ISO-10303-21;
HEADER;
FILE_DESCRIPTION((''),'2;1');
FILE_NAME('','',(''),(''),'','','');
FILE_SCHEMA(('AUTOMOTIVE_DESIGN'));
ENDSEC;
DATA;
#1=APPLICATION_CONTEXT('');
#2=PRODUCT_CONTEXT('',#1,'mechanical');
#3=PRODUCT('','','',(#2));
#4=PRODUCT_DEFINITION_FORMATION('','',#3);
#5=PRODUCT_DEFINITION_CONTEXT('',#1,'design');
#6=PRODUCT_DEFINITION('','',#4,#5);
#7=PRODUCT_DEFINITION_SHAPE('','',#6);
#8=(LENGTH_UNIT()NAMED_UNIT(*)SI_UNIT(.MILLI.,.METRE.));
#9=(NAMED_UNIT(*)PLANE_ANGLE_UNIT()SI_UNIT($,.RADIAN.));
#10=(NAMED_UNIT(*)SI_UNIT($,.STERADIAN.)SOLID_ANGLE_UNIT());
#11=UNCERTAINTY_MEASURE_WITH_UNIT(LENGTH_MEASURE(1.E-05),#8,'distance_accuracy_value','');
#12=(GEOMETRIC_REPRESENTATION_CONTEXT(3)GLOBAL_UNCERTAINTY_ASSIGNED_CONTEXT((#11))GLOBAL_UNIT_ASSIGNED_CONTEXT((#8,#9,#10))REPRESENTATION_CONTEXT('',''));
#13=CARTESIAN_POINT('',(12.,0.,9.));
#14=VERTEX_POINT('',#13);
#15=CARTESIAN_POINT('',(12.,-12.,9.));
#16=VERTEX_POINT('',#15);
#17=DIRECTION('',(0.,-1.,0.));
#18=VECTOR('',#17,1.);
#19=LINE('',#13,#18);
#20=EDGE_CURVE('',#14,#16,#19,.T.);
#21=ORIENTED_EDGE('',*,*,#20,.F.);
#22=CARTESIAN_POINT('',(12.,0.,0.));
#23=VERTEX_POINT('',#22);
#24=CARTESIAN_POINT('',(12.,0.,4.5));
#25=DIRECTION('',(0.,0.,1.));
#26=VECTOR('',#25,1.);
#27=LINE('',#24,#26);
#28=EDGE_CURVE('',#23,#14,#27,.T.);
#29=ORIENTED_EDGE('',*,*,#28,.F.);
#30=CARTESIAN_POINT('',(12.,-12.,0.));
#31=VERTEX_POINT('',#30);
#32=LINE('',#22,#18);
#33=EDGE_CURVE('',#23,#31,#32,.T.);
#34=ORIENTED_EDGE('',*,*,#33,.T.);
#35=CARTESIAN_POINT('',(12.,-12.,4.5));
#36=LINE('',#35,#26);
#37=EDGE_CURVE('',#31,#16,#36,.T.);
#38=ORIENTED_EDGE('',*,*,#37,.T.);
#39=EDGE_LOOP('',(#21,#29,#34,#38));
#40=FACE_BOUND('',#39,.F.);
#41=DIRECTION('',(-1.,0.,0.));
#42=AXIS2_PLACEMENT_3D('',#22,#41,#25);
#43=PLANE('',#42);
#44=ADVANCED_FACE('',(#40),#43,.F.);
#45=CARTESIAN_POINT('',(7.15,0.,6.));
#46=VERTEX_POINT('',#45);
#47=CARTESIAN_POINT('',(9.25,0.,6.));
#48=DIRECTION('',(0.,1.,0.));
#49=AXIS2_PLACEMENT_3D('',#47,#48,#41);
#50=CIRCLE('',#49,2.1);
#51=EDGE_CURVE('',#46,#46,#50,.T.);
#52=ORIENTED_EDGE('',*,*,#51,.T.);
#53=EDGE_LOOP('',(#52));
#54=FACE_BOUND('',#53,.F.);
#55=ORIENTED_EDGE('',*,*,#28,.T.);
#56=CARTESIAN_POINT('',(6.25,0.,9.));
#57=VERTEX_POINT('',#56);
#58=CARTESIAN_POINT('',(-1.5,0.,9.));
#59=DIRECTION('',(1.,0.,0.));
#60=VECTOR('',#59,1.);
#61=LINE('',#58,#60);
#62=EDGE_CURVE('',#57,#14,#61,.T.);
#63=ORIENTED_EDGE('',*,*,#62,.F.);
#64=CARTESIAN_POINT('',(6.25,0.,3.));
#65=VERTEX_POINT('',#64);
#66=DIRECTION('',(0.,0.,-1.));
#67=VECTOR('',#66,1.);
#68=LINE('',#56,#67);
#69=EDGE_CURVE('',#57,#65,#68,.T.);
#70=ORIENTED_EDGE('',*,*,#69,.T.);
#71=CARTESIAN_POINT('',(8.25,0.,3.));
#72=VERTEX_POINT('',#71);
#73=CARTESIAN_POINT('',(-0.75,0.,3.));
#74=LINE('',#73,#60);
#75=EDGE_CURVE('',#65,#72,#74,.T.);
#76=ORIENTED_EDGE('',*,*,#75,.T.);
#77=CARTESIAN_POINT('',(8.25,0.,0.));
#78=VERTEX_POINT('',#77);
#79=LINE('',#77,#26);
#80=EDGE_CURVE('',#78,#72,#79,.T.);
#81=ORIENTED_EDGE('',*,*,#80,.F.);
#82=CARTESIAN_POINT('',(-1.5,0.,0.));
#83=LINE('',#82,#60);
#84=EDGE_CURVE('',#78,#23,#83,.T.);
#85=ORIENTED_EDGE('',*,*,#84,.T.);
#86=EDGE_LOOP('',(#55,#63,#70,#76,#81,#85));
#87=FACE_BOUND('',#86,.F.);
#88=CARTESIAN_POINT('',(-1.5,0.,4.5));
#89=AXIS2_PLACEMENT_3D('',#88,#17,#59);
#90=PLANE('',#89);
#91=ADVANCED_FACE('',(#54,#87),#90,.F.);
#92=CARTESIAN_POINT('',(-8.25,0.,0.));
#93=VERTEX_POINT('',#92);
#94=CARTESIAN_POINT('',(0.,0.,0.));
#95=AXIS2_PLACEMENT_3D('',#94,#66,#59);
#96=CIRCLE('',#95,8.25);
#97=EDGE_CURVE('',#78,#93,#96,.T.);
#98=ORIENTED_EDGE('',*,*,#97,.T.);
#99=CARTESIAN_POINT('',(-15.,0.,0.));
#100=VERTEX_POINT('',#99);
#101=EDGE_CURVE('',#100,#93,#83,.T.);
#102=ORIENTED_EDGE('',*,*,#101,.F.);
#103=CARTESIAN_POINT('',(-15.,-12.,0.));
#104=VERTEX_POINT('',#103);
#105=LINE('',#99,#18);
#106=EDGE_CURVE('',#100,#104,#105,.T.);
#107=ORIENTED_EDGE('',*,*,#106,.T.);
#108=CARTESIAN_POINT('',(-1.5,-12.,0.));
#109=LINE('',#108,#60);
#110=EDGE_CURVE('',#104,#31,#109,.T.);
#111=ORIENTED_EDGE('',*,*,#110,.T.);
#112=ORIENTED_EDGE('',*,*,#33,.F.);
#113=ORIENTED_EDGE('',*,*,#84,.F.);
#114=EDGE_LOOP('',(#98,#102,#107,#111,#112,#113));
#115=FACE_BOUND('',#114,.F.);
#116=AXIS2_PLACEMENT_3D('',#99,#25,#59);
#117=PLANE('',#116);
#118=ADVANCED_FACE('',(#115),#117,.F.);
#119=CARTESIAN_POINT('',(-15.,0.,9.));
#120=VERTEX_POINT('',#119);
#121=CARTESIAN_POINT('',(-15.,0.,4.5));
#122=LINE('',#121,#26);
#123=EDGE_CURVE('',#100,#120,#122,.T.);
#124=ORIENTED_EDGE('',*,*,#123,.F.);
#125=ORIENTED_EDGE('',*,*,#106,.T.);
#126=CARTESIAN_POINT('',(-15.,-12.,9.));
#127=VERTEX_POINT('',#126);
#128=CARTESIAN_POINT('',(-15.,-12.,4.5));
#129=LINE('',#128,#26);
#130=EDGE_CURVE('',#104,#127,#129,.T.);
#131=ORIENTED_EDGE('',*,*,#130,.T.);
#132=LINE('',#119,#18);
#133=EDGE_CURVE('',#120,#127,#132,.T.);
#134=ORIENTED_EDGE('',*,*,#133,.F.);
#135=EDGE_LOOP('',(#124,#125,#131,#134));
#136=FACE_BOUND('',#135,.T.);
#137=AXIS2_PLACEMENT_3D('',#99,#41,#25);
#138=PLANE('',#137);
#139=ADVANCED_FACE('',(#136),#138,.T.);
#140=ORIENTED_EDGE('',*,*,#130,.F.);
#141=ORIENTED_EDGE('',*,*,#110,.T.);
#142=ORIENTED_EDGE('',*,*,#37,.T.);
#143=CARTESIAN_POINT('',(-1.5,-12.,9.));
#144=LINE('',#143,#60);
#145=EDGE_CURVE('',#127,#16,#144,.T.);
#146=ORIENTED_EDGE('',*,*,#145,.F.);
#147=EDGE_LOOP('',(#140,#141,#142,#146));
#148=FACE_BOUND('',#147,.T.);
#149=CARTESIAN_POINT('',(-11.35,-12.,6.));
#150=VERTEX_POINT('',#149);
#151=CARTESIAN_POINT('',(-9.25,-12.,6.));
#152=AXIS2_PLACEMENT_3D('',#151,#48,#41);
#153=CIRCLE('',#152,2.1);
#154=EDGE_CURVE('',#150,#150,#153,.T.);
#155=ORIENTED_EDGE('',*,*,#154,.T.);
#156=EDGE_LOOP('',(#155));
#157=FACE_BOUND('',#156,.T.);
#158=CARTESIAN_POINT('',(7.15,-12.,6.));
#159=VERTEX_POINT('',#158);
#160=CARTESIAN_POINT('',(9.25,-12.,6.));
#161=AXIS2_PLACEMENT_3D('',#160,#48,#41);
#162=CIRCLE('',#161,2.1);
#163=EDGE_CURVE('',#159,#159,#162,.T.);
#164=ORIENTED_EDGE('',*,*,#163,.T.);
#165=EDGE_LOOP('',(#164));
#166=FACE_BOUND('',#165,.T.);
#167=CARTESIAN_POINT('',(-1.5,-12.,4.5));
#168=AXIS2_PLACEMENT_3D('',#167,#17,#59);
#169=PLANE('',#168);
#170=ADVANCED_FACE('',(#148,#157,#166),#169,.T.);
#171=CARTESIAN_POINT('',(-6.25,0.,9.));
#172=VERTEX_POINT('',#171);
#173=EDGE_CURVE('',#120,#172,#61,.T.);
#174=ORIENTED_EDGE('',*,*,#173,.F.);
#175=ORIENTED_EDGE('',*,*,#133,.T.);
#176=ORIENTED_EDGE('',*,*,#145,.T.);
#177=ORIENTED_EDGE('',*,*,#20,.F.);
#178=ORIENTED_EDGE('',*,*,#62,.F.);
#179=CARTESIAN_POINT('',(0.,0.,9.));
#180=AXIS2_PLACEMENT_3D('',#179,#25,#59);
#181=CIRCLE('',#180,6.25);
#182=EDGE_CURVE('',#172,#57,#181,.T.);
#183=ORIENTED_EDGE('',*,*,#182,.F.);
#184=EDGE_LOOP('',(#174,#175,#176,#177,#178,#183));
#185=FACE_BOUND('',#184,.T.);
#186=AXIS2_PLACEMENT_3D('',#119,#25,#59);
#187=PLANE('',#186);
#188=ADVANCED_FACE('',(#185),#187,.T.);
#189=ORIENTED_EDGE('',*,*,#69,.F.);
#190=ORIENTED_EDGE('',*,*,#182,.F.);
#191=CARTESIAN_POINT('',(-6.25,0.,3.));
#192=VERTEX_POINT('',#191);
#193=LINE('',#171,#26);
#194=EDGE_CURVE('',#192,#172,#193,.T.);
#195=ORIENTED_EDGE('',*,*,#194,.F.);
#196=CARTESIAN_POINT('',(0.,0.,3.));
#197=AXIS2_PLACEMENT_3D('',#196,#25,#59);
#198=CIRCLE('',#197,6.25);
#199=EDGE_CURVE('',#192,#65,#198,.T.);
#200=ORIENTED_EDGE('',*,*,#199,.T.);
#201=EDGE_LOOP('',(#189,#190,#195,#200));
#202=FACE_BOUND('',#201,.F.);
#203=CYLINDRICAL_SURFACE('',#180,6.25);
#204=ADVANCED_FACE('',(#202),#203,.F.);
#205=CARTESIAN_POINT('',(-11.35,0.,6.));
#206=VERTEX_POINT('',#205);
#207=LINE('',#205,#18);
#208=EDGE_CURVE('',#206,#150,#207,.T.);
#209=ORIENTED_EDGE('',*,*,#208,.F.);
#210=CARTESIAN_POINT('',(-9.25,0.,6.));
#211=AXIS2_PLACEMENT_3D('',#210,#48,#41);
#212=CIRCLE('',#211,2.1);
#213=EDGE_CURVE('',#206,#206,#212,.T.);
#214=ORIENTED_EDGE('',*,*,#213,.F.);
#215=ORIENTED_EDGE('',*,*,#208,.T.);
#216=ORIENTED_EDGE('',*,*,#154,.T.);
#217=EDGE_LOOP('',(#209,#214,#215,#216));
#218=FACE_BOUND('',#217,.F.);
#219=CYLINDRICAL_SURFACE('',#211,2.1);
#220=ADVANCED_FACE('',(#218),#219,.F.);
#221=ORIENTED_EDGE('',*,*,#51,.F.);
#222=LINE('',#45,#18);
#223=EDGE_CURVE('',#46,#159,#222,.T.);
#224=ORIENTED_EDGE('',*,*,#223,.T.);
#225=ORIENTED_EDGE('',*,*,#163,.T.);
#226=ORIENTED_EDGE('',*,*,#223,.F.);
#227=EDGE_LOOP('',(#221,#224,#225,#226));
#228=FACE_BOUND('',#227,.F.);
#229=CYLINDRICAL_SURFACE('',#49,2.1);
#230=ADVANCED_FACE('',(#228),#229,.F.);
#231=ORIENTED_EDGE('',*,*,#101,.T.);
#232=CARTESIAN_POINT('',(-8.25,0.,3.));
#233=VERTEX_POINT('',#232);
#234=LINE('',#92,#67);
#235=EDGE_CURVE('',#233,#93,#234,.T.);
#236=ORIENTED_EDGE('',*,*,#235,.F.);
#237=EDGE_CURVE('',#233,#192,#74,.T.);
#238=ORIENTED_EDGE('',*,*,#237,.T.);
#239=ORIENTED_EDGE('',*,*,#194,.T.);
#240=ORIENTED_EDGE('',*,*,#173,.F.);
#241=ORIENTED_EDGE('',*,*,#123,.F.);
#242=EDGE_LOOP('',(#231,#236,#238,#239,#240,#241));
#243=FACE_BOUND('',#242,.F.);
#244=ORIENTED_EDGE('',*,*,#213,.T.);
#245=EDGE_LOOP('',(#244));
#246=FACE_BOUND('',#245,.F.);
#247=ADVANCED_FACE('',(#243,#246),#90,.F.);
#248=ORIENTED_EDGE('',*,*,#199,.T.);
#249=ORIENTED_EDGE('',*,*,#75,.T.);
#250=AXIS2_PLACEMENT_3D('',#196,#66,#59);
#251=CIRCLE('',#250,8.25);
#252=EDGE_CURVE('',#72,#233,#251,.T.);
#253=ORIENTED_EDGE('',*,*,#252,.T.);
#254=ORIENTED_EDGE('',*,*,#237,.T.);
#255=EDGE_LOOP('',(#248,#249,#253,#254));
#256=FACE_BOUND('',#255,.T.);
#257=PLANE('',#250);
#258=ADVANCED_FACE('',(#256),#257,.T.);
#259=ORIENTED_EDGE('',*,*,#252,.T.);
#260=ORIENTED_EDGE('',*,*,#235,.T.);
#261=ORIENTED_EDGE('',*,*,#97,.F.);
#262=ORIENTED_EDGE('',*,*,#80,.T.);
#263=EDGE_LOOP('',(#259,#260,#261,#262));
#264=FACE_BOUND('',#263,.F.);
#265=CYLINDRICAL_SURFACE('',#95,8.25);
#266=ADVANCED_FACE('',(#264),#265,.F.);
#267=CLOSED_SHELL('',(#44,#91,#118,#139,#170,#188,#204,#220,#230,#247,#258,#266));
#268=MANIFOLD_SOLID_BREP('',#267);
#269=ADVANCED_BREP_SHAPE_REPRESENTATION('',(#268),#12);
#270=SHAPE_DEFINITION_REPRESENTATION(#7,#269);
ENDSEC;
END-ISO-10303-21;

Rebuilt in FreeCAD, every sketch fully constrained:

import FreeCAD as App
import Part
import Sketcher

V = App.Vector
Q = App.Units.Quantity

doc = App.newDocument("Part")
params = doc.addObject("Spreadsheet::Sheet", "Params")
for row, (alias, value) in enumerate([
    ("sketch1_width", "27 mm"),
    ("sketch1_height", "9 mm"),
    ("pad1_length", "12 mm"),
    ("sketch2_diameter", "12.5 mm"),
    ("sketch3_diameter", "16.5 mm"),
    ("pocket2_length", "3 mm"),
    ("sketch4_diameter", "4.2 mm"),
], start=1):
    params.set(f"A{row}", alias)
    params.set(f"B{row}", "=" + value)
    params.setAlias(f"B{row}", alias)

body = doc.addObject("PartDesign::Body", "Body")

sketch1 = body.newObject("Sketcher::SketchObject", "Sketch")
sketch1.AttachmentSupport = (doc.getObject("XZ_Plane"), [""])
sketch1.MapMode = "FlatFace"
sketch1.addGeometry(Part.LineSegment(V(-15, 9, 0), V(-15, 0, 0)), False)
sketch1.addGeometry(Part.LineSegment(V(-15, 0, 0), V(12, 0, 0)), False)
sketch1.addGeometry(Part.LineSegment(V(12, 0, 0), V(12, 9, 0)), False)
sketch1.addGeometry(Part.LineSegment(V(12, 9, 0), V(-15, 9, 0)), False)
sketch1.addConstraint(Sketcher.Constraint("Coincident", 0, 2, 1, 1))
sketch1.addConstraint(Sketcher.Constraint("Coincident", 1, 2, 2, 1))
sketch1.addConstraint(Sketcher.Constraint("Coincident", 2, 2, 3, 1))
sketch1.addConstraint(Sketcher.Constraint("Coincident", 3, 2, 0, 1))
sketch1.addConstraint(Sketcher.Constraint("Vertical", 0))
sketch1.addConstraint(Sketcher.Constraint("Horizontal", 1))
sketch1.addConstraint(Sketcher.Constraint("Vertical", 2))
sketch1.addConstraint(Sketcher.Constraint("Horizontal", 3))
sketch1.addConstraint(Sketcher.Constraint("PointOnObject", 0, 2, -1))
sketch1.addConstraint(Sketcher.Constraint("DistanceX", 1, 1, 1, 2, Q("27 mm")))
sketch1.addConstraint(Sketcher.Constraint("DistanceY", 0, 2, 0, 1, Q("9 mm")))
sketch1.addConstraint(Sketcher.Constraint("DistanceX", 0, 2, -1, 1, Q("15 mm")))
sketch1.setExpression("Constraints[9]", "Params.sketch1_width")
sketch1.setExpression("Constraints[10]", "Params.sketch1_height")
pad1 = body.newObject("PartDesign::Pad", "Pad")
pad1.Profile = sketch1
pad1.setExpression("Length", "Params.pad1_length")

sketch2 = body.newObject("Sketcher::SketchObject", "Sketch001")
sketch2.AttachmentSupport = (doc.getObject("XY_Plane"), [""])
sketch2.MapMode = "FlatFace"
sketch2.AttachmentOffset = App.Placement(V(0, 0, 9), App.Rotation())
sketch2.addGeometry(Part.Circle(V(0, 0, 0), V(0, 0, 1), 6.25), False)
sketch2.addConstraint(Sketcher.Constraint("Coincident", 0, 3, -1, 1))
sketch2.addConstraint(Sketcher.Constraint("Diameter", 0, Q("12.5 mm")))
sketch2.setExpression("Constraints[1]", "Params.sketch2_diameter")
pocket1 = body.newObject("PartDesign::Pocket", "Pocket")
pocket1.Profile = sketch2
pocket1.Type = "ThroughAll"

sketch3 = body.newObject("Sketcher::SketchObject", "Sketch002")
sketch3.AttachmentSupport = (doc.getObject("XY_Plane"), [""])
sketch3.MapMode = "FlatFace"
sketch3.addGeometry(Part.Circle(V(0, 0, 0), V(0, 0, 1), 8.25), False)
sketch3.addConstraint(Sketcher.Constraint("Coincident", 0, 3, -1, 1))
sketch3.addConstraint(Sketcher.Constraint("Diameter", 0, Q("16.5 mm")))
sketch3.setExpression("Constraints[1]", "Params.sketch3_diameter")
pocket2 = body.newObject("PartDesign::Pocket", "Pocket001")
pocket2.Profile = sketch3
pocket2.setExpression("Length", "Params.pocket2_length")
pocket2.Reversed = True

sketch4 = body.newObject("Sketcher::SketchObject", "Sketch003")
sketch4.AttachmentSupport = (doc.getObject("XZ_Plane"), [""])
sketch4.MapMode = "FlatFace"
sketch4.addGeometry(Part.Circle(V(9.25, 6, 0), V(0, 0, 1), 2.1), False)
sketch4.addGeometry(Part.Circle(V(-9.25, 6, 0), V(0, 0, 1), 2.1), False)
sketch4.addConstraint(Sketcher.Constraint("Equal", 0, 1))
sketch4.addConstraint(Sketcher.Constraint("Symmetric", 0, 3, 1, 3, -2))
sketch4.addConstraint(Sketcher.Constraint("Diameter", 0, Q("4.2 mm")))
sketch4.addConstraint(Sketcher.Constraint("DistanceY", -1, 1, 0, 3, Q("6 mm")))
sketch4.addConstraint(Sketcher.Constraint("DistanceX", 1, 3, 0, 3, Q("18.5 mm")))
sketch4.setExpression("Constraints[2]", "Params.sketch4_diameter")
pocket3 = body.newObject("PartDesign::Pocket", "Pocket002")
pocket3.Profile = sketch4
pocket3.Type = "ThroughAll"
pocket3.Reversed = True

doc.recompute()
